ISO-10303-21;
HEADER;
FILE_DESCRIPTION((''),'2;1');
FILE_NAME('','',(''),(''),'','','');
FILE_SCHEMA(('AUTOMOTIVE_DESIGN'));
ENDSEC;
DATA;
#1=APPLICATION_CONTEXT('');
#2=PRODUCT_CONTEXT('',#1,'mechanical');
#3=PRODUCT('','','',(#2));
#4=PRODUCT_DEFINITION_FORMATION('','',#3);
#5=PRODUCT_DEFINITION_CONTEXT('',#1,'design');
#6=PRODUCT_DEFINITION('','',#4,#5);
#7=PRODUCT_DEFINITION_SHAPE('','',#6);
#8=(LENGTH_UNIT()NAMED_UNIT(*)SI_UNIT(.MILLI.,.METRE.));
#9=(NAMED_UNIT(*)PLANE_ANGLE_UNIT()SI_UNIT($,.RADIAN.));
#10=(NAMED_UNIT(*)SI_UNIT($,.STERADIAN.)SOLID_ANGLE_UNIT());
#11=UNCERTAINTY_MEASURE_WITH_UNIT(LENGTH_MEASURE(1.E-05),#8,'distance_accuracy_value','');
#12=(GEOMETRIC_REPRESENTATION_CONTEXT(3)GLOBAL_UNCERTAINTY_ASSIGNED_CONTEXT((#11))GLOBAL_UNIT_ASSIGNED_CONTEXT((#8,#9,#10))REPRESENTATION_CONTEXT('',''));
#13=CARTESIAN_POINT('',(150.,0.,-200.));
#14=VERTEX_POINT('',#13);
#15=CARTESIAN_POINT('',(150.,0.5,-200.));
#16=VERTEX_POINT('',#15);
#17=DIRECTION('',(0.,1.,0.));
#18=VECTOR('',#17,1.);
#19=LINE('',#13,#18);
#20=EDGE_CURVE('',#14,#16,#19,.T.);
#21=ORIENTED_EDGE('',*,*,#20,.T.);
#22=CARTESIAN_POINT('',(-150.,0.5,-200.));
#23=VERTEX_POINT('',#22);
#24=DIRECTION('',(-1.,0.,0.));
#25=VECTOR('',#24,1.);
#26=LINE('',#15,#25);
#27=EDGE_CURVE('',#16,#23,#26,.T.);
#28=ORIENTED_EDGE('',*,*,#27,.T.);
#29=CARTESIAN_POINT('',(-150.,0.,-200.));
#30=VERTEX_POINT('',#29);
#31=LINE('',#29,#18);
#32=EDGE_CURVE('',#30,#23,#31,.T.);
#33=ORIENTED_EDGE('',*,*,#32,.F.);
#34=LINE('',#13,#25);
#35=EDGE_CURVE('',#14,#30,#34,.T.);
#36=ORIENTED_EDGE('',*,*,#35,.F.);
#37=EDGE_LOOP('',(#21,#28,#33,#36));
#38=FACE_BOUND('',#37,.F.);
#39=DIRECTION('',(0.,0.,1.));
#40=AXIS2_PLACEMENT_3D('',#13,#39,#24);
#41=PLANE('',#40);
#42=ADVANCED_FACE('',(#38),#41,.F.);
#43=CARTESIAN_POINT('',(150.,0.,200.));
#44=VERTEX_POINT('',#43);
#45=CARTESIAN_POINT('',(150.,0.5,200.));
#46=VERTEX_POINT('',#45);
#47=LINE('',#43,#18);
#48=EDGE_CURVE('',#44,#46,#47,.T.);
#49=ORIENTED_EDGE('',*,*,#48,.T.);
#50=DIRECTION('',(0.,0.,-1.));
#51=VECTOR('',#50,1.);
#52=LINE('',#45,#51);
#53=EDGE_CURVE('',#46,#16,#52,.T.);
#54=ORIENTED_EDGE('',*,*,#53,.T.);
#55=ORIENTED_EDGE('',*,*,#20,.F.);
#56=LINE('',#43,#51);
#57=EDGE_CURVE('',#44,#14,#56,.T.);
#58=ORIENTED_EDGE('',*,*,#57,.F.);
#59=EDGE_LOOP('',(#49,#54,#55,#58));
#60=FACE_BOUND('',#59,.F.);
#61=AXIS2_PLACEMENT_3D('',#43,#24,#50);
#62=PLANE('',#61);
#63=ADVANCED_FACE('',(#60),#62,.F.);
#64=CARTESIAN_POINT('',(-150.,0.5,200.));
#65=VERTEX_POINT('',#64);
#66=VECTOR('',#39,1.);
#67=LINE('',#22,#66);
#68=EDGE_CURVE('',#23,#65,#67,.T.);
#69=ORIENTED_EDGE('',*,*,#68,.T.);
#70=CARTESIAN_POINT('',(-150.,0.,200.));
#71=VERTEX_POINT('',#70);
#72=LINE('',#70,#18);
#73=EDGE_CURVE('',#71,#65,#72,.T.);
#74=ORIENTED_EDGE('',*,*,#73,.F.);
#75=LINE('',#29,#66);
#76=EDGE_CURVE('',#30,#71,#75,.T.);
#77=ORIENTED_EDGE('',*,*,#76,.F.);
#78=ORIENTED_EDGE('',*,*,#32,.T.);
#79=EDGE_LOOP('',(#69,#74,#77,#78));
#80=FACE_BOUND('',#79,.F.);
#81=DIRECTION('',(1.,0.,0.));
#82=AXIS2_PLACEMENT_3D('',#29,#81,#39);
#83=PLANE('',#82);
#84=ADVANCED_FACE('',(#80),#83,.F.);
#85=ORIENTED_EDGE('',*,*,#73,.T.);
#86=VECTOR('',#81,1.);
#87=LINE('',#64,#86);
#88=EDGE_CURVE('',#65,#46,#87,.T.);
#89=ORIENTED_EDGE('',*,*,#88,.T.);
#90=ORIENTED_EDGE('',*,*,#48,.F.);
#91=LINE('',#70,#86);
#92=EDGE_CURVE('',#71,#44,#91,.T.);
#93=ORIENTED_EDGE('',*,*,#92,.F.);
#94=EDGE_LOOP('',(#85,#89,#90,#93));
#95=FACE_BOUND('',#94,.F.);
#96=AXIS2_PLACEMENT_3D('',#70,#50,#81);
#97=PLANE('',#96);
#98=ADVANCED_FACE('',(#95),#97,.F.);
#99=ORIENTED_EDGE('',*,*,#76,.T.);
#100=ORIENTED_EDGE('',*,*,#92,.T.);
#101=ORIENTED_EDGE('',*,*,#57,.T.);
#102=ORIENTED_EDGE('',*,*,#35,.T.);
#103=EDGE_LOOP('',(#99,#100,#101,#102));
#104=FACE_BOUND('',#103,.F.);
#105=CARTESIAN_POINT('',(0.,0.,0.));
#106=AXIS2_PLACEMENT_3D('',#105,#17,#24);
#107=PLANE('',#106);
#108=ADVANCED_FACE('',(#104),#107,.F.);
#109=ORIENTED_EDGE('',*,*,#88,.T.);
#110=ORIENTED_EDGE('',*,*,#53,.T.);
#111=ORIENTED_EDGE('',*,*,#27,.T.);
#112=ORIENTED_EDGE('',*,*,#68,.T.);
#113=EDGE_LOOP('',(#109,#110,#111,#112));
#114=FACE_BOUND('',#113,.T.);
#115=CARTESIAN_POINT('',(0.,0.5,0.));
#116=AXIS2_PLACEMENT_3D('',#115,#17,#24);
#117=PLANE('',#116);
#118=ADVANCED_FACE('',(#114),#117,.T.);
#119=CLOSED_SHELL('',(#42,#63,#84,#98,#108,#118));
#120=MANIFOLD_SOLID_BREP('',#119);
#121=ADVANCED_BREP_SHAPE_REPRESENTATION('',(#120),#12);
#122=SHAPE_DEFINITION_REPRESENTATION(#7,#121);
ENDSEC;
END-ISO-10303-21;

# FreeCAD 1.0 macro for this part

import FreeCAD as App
import Part
import Sketcher
from FreeCAD import Vector
Q = App.Units.Quantity

doc = App.newDocument("Part")
body = doc.addObject("PartDesign::Body", "Body")

sketch1 = doc.addObject("Sketcher::SketchObject", "Sketch")
body.addObject(sketch1)
sketch1.AttachmentSupport = (doc.XZ_Plane, [""])
sketch1.MapMode = "FlatFace"
sketch1.addGeometry(Part.LineSegment(Vector(-150, -200, 0), Vector(-150, 200, 0)), False)
sketch1.addGeometry(Part.LineSegment(Vector(-150, 200, 0), Vector(150, 200, 0)), False)
sketch1.addGeometry(Part.LineSegment(Vector(150, 200, 0), Vector(150, -200, 0)), False)
sketch1.addGeometry(Part.LineSegment(Vector(150, -200, 0), Vector(-150, -200, 0)), False)
sketch1.addConstraint(Sketcher.Constraint("Coincident", 0, 2, 1, 1))
sketch1.addConstraint(Sketcher.Constraint("Coincident", 1, 2, 2, 1))
sketch1.addConstraint(Sketcher.Constraint("Coincident", 2, 2, 3, 1))
sketch1.addConstraint(Sketcher.Constraint("Coincident", 3, 2, 0, 1))
sketch1.addConstraint(Sketcher.Constraint("Vertical", 0))
sketch1.addConstraint(Sketcher.Constraint("Horizontal", 1))
sketch1.addConstraint(Sketcher.Constraint("Vertical", 2))
sketch1.addConstraint(Sketcher.Constraint("Horizontal", 3))
sketch1.addConstraint(Sketcher.Constraint("Symmetric", 0, 2, 2, 2, -1, 1))
sketch1.addConstraint(Sketcher.Constraint("DistanceX", 1, 1, 1, 2, Q("300 mm")))
sketch1.addConstraint(Sketcher.Constraint("DistanceY", 0, 1, 0, 2, Q("400 mm")))
pad1 = doc.addObject("PartDesign::Pad", "Pad")
body.addObject(pad1)
pad1.Profile = sketch1
pad1.Length = 0.5
pad1.Reversed = True

doc.recompute()
